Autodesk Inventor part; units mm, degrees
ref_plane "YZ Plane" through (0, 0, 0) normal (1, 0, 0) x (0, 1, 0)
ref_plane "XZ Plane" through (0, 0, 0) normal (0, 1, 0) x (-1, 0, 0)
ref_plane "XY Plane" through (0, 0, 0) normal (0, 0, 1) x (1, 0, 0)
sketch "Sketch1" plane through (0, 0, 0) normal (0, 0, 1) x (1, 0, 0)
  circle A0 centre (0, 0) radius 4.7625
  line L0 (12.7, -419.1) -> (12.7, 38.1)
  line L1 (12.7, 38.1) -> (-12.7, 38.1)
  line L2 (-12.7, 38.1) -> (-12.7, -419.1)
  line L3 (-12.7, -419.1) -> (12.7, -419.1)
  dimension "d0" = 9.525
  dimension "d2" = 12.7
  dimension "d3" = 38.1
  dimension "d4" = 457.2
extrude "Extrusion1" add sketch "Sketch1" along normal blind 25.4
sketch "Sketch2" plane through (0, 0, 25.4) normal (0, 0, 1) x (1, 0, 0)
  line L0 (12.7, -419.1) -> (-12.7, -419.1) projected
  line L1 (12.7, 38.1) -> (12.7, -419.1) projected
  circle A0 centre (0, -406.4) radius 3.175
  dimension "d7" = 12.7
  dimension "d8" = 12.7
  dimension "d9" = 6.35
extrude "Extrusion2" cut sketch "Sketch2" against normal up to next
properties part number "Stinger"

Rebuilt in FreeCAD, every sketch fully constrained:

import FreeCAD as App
import Part
import Sketcher
Q = App.Units.Quantity


def add_polygon(sketch, points):
    """Adds a closed chain of lines whose ends are joined by coincident constraints."""
    first, n = sketch.GeometryCount, len(points)
    for a, b in zip(points, points[1:] + points[:1]):
        sketch.addGeometry(Part.LineSegment(App.Vector(*a, 0), App.Vector(*b, 0)), False)
    for i in range(n):
        sketch.addConstraint(Sketcher.Constraint("Coincident", first + i, 2, first + (i + 1) % n, 1))

doc = App.newDocument("Part")
body = doc.addObject("PartDesign::Body", "Body")

# Sketch on XY plane
sketch1 = body.newObject("Sketcher::SketchObject", "Sketch")
sketch1.AttachmentSupport = (doc.getObject("XY_Plane"), [""])
sketch1.MapMode = "FlatFace"
add_polygon(sketch1, [(-12.7, -419.1), (12.7, -419.1), (12.7, 38.1), (-12.7, 38.1)])  # lines 0-3
sketch1.addGeometry(Part.Circle(App.Vector(0, 0, 0), App.Vector(0, 0, 1), 4.8), False)  # 4
sketch1.addConstraint(Sketcher.Constraint("Horizontal", 0))
sketch1.addConstraint(Sketcher.Constraint("Vertical", 1))
sketch1.addConstraint(Sketcher.Constraint("Horizontal", 2))
sketch1.addConstraint(Sketcher.Constraint("Vertical", 3))
sketch1.addConstraint(Sketcher.Constraint("Coincident", 4, 3, -1, 1))
sketch1.addConstraint(Sketcher.Constraint("DistanceY", 1, 1, 1, 2, Q("18 in")))
sketch1.addConstraint(Sketcher.Constraint("Diameter", 4, Q("0.375 in")))
sketch1.addConstraint(Sketcher.Constraint("DistanceX", -1, 1, 0, 2, Q("0.5 in")))
sketch1.addConstraint(Sketcher.Constraint("DistanceY", -1, 1, 1, 2, Q("1.5 in")))
sketch1.addConstraint(Sketcher.Constraint("DistanceX", 2, 2, -1, 1, Q("0.5 in")))
pad1 = body.newObject("PartDesign::Pad", "Pad")
pad1.Profile = sketch1
pad1.Length = Q("1 in")

# Sketch on XY plane
sketch2 = body.newObject("Sketcher::SketchObject", "Sketch001")
sketch2.AttachmentSupport = (doc.getObject("XY_Plane"), [""])
sketch2.MapMode = "FlatFace"
sketch2.AttachmentOffset = App.Placement(App.Vector(0, 0, 1 * 25.4), App.Rotation())
sketch2.addGeometry(Part.Circle(App.Vector(0, -406.4, 0), App.Vector(0, 0, 1), 3.2), False)
sketch2.addConstraint(Sketcher.Constraint("PointOnObject", 0, 3, -2))
sketch2.addConstraint(Sketcher.Constraint("Diameter", 0, Q("0.25 in")))
sketch2.addConstraint(Sketcher.Constraint("DistanceY", 0, 3, -1, 1, Q("16 in")))
pocket1 = body.newObject("PartDesign::Pocket", "Pocket")
pocket1.Profile = sketch2
pocket1.Type = "UpToFirst"

doc.recompute()
